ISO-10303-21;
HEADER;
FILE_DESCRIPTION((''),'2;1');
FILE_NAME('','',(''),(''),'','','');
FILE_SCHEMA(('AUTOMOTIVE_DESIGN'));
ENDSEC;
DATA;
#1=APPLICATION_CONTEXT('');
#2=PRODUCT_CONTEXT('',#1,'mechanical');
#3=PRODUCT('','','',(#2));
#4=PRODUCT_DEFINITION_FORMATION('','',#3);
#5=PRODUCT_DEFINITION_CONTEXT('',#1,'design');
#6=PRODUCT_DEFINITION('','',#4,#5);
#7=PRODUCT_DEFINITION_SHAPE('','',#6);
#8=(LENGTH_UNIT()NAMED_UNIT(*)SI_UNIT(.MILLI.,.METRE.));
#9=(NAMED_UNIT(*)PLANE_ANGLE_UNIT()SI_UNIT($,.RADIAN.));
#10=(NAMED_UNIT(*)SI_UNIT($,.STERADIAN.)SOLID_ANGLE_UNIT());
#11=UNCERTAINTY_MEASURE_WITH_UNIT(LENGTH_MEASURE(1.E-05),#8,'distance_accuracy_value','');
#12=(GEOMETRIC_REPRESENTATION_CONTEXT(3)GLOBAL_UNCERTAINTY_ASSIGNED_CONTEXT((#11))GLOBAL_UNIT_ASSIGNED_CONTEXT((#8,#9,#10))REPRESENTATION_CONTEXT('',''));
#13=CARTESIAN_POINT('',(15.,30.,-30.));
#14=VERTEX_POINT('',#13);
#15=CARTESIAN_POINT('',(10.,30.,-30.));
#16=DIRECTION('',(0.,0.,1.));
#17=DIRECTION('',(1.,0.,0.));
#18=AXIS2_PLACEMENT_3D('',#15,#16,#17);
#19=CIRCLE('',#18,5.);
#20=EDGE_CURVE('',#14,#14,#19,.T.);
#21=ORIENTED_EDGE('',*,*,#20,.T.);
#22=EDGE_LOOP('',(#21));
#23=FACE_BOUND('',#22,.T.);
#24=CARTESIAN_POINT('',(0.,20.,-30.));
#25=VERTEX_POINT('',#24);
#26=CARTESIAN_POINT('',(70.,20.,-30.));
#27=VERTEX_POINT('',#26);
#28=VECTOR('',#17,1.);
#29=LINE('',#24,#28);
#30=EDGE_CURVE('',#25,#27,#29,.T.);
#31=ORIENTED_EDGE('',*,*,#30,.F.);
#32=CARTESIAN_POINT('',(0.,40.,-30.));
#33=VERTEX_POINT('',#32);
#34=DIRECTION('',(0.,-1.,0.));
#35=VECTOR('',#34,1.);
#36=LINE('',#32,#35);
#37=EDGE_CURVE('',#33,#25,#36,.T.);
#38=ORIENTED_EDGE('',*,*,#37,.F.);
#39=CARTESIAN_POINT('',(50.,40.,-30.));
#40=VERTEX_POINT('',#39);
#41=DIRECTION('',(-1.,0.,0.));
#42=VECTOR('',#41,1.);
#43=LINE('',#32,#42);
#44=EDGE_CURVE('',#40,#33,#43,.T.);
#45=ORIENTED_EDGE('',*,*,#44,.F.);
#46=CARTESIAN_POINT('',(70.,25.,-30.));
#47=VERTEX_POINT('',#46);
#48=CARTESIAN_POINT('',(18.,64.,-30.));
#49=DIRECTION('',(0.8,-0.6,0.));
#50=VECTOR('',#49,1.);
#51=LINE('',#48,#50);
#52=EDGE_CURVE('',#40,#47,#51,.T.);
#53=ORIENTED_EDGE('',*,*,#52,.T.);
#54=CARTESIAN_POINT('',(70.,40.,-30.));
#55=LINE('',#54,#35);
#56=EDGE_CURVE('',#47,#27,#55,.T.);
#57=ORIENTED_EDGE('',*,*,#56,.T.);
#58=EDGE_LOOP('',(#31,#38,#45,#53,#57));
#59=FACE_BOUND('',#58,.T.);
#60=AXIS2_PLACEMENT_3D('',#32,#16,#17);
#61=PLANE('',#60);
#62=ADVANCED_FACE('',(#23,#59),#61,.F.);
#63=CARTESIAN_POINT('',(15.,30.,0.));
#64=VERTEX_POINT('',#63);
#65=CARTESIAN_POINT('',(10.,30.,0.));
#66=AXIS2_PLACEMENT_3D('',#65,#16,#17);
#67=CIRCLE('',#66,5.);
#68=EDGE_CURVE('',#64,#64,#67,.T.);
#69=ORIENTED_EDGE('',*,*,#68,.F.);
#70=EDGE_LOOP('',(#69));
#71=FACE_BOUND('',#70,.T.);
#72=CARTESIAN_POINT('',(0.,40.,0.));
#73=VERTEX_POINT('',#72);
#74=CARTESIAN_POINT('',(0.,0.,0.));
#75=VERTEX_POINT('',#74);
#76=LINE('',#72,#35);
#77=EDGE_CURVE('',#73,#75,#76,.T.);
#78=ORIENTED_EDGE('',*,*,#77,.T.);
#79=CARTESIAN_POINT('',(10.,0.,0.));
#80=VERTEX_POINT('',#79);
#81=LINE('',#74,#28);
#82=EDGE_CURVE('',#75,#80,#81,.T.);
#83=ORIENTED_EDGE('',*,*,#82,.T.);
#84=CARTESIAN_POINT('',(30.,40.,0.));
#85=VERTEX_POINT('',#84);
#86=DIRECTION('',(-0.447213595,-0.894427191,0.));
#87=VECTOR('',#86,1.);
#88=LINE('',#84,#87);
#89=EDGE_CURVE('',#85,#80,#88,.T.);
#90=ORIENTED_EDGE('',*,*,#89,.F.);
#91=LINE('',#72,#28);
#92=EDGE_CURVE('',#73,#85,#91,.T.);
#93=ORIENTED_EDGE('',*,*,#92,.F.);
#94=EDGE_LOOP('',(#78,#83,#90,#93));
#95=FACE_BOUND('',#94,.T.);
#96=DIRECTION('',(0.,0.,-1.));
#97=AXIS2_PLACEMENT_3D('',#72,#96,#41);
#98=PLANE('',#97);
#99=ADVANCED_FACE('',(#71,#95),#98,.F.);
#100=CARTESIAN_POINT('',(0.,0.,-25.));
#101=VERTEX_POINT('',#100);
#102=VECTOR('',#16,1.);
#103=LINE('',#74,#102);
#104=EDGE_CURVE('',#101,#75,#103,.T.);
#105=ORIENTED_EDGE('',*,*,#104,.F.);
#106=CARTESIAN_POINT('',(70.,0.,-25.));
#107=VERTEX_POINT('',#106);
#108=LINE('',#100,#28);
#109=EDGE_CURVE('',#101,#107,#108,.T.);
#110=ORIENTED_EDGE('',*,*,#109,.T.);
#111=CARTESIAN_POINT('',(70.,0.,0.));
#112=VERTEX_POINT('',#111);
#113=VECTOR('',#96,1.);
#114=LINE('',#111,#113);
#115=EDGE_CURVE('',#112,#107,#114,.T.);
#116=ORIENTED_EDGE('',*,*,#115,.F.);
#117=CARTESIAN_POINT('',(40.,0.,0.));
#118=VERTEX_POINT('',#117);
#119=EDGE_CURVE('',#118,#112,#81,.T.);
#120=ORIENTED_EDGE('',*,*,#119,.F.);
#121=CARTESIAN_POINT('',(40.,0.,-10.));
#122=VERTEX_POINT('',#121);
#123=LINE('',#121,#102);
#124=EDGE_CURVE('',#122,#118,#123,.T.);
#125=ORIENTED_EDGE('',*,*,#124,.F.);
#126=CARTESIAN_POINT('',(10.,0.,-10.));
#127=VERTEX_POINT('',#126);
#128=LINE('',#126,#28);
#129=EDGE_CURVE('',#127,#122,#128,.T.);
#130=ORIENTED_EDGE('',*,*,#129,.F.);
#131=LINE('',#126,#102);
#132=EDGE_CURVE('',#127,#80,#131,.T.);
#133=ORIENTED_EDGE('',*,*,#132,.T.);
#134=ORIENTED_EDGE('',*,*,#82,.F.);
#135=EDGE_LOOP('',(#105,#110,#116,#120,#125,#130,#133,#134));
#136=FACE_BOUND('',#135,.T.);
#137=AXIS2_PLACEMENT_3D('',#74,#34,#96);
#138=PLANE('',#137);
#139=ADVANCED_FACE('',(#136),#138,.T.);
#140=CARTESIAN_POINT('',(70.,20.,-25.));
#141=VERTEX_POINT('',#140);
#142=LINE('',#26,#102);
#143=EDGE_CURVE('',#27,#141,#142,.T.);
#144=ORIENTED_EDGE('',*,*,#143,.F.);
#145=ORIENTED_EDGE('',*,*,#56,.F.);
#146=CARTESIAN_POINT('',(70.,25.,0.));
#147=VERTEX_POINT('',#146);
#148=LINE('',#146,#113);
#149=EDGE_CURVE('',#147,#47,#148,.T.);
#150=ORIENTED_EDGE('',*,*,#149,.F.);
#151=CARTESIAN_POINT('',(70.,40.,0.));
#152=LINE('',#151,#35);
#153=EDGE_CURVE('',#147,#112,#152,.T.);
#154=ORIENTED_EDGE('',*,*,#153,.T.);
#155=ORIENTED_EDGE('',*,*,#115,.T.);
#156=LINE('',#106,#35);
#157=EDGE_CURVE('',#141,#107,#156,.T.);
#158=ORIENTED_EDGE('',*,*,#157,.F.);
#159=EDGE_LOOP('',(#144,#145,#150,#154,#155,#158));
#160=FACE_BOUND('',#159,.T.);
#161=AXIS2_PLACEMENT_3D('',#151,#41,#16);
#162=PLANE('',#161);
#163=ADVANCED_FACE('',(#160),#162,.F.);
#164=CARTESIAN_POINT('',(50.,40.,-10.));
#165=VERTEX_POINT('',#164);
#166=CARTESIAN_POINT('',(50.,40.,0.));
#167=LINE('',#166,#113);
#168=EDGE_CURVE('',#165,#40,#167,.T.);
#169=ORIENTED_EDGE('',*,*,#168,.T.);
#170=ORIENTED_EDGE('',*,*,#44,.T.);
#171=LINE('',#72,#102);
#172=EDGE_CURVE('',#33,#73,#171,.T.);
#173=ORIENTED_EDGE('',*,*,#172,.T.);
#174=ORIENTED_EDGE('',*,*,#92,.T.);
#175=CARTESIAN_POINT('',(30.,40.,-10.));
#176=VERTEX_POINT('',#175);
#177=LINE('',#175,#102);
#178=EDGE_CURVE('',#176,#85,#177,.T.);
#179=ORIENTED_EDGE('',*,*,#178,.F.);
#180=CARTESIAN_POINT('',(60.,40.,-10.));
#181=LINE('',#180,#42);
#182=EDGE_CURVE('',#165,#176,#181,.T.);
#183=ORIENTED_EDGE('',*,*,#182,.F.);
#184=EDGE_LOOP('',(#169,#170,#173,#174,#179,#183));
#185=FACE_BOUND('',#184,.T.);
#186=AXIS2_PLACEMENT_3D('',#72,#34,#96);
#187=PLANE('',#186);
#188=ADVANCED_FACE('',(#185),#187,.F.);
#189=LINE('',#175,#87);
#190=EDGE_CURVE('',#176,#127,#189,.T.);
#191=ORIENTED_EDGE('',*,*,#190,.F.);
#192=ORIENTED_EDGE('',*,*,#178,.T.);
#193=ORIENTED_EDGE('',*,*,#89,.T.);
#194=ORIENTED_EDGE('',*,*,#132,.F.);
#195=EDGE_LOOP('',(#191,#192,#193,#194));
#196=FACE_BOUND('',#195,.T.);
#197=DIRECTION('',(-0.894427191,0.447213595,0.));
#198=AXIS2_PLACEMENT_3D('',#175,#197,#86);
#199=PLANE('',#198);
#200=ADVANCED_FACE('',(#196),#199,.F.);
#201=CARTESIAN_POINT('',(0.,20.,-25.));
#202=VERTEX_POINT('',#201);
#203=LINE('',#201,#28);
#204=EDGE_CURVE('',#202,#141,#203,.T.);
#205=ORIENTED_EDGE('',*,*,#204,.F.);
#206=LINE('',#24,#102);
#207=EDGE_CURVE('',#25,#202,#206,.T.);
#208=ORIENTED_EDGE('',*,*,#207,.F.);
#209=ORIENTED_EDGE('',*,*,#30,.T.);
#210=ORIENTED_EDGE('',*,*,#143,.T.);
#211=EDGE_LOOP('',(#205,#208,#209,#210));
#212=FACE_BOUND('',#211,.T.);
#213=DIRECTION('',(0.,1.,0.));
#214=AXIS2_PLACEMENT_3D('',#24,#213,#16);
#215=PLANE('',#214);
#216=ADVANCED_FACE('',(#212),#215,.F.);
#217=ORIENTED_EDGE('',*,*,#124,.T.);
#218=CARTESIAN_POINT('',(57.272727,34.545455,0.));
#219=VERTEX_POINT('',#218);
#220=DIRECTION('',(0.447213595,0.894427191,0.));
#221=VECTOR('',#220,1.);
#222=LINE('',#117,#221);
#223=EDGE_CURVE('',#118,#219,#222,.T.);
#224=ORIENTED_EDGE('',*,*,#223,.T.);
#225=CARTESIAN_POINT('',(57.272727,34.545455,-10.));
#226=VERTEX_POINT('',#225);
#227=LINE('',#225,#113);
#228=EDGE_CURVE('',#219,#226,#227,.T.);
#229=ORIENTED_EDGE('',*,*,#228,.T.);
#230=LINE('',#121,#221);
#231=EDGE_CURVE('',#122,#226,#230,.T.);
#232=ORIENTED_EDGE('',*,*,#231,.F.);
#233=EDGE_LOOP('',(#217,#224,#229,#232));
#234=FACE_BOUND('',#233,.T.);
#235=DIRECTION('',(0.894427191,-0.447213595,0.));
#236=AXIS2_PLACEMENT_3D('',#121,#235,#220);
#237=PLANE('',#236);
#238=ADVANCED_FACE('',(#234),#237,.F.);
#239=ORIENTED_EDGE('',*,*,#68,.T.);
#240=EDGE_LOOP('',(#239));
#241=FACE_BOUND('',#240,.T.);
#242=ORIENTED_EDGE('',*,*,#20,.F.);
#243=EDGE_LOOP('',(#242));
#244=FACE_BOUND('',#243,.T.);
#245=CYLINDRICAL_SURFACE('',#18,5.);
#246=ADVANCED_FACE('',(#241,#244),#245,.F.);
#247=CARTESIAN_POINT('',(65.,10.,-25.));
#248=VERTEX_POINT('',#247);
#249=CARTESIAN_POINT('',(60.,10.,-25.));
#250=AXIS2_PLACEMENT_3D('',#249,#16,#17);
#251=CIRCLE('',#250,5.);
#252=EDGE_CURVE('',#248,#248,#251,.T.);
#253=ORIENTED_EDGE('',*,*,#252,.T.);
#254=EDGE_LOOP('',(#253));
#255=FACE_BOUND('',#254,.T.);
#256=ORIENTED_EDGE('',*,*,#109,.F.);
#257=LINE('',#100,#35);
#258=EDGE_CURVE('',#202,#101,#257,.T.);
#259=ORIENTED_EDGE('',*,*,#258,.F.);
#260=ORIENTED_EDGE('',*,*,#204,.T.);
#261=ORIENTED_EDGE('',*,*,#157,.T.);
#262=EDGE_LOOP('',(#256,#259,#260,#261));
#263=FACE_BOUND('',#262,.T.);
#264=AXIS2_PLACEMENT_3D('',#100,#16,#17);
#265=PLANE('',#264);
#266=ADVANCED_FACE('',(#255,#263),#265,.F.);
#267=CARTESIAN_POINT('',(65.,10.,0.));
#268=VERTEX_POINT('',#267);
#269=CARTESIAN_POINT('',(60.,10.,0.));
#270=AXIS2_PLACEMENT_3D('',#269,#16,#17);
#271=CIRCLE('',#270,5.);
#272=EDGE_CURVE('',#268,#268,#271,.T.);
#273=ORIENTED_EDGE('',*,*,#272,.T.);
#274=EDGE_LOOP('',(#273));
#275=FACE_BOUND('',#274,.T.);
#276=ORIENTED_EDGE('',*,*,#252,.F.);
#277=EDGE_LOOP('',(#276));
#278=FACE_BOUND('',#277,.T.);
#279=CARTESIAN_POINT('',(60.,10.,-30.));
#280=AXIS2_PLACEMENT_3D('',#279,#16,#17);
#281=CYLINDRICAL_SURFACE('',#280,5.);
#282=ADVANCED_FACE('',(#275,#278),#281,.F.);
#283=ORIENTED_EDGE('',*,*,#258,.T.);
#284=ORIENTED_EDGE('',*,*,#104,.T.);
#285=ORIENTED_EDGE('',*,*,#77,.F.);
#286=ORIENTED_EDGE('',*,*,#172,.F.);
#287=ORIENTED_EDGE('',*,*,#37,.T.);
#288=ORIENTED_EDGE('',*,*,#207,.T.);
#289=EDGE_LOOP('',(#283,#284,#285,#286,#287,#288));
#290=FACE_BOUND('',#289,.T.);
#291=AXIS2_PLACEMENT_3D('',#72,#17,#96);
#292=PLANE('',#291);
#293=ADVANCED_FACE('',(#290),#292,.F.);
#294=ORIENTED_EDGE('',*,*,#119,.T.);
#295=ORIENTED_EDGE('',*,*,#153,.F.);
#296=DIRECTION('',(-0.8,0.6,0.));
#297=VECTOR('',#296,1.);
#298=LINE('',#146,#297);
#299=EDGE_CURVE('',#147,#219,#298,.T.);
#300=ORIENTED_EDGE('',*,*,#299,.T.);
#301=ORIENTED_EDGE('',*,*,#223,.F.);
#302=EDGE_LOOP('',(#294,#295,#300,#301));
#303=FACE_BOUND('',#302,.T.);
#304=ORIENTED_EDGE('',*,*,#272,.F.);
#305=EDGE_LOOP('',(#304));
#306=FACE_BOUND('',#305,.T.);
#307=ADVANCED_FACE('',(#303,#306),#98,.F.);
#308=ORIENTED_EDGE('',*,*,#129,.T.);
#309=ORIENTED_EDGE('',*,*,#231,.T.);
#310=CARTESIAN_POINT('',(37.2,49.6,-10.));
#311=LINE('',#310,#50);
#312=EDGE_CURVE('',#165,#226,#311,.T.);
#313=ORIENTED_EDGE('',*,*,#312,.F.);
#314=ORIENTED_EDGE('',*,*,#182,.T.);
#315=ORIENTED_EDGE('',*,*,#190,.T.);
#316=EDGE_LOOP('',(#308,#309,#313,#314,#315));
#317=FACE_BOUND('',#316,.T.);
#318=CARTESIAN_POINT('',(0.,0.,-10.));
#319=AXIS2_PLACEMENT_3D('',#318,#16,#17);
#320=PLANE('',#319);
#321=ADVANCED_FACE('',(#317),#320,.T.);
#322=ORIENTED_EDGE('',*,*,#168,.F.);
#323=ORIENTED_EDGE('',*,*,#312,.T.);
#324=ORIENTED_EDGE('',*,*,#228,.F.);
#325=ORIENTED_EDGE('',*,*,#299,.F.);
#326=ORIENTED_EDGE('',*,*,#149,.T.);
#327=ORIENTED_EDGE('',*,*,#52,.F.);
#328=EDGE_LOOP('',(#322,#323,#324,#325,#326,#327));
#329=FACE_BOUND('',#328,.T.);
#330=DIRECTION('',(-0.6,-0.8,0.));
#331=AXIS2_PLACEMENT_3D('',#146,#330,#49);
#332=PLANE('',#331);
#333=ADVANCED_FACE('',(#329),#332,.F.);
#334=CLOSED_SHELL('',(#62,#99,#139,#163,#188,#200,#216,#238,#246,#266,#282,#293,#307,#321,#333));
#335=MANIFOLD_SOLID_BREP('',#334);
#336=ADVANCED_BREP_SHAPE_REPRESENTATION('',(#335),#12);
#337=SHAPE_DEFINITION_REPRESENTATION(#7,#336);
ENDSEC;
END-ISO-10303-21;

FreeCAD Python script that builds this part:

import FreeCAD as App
import Part
import Sketcher

V = App.Vector

doc = App.newDocument("Part")
params = doc.addObject("Spreadsheet::Sheet", "Params")
for row, (alias, value) in enumerate([
    ("sketch1_width", "70 mm"),
    ("sketch1_height", "30 mm"),
    ("pad1_length", "40 mm"),
    ("sketch2_width", "30 mm"),
    ("pocket1_length", "10 mm"),
    ("sketch3_width", "20 mm"),
    ("sketch3_height", "15 mm"),
    ("sketch4_width", "20 mm"),
    ("sketch4_height", "5 mm"),
    ("sketch5_diameter", "10 mm"),
    ("sketch6_diameter", "10 mm"),
], start=1):
    params.set(f"A{row}", alias)
    params.set(f"B{row}", "=" + value)
    params.setAlias(f"B{row}", alias)

body = doc.addObject("PartDesign::Body", "Body")

# Sketch on XZ plane
sketch1 = body.newObject("Sketcher::SketchObject", "Sketch")
sketch1.AttachmentSupport = (doc.getObject("XZ_Plane"), [""])
sketch1.MapMode = "FlatFace"
sketch1.addGeometry(Part.LineSegment(V(0, -30, 0), V(0, 0, 0)), False)
sketch1.addGeometry(Part.LineSegment(V(0, 0, 0), V(70, 0, 0)), False)
sketch1.addGeometry(Part.LineSegment(V(70, 0, 0), V(70, -30, 0)), False)
sketch1.addGeometry(Part.LineSegment(V(70, -30, 0), V(0, -30, 0)), False)
sketch1.addConstraint(Sketcher.Constraint("Coincident", 0, 2, 1, 1))
sketch1.addConstraint(Sketcher.Constraint("Coincident", 1, 2, 2, 1))
sketch1.addConstraint(Sketcher.Constraint("Coincident", 2, 2, 3, 1))
sketch1.addConstraint(Sketcher.Constraint("Coincident", 3, 2, 0, 1))
sketch1.addConstraint(Sketcher.Constraint("Vertical", 0))
sketch1.addConstraint(Sketcher.Constraint("Horizontal", 1))
sketch1.addConstraint(Sketcher.Constraint("Vertical", 2))
sketch1.addConstraint(Sketcher.Constraint("Horizontal", 3))
sketch1.addConstraint(Sketcher.Constraint("Coincident", 0, 2, -1, 1))
sketch1.addConstraint(Sketcher.Constraint("DistanceX", 1, 1, 1, 2, 70.0))
sketch1.addConstraint(Sketcher.Constraint("DistanceY", 0, 1, 0, 2, 30.0))
sketch1.setExpression("Constraints[9]", "Params.sketch1_width")
sketch1.setExpression("Constraints[10]", "Params.sketch1_height")
pad1 = body.newObject("PartDesign::Pad", "Pad")
pad1.Profile = sketch1
pad1.setExpression("Length", "Params.pad1_length")
pad1.Reversed = True

# Sketch on XY plane
sketch2 = body.newObject("Sketcher::SketchObject", "Sketch001")
sketch2.AttachmentSupport = (doc.getObject("XY_Plane"), [""])
sketch2.MapMode = "FlatFace"
sketch2.addGeometry(Part.LineSegment(V(30, 40, 0), V(10, 0, 0)), False)
sketch2.addGeometry(Part.LineSegment(V(10, 0, 0), V(40, 0, 0)), False)
sketch2.addGeometry(Part.LineSegment(V(40, 0, 0), V(60, 40, 0)), False)
sketch2.addGeometry(Part.LineSegment(V(60, 40, 0), V(30, 40, 0)), False)
sketch2.addConstraint(Sketcher.Constraint("Coincident", 0, 2, 1, 1))
sketch2.addConstraint(Sketcher.Constraint("Coincident", 1, 2, 2, 1))
sketch2.addConstraint(Sketcher.Constraint("Coincident", 2, 2, 3, 1))
sketch2.addConstraint(Sketcher.Constraint("Coincident", 3, 2, 0, 1))
sketch2.addConstraint(Sketcher.Constraint("Horizontal", 1))
sketch2.addConstraint(Sketcher.Constraint("Horizontal", 3))
sketch2.addConstraint(Sketcher.Constraint("PointOnObject", 0, 2, -1))
sketch2.addConstraint(Sketcher.Constraint("Parallel", 0, 2))
sketch2.addConstraint(Sketcher.Constraint("DistanceX", 1, 1, 1, 2, 30.0))
sketch2.addConstraint(Sketcher.Constraint("DistanceX", -1, 1, 0, 2, 10.0))
sketch2.addConstraint(Sketcher.Constraint("DistanceX", -1, 1, 2, 2, 60.0))
sketch2.addConstraint(Sketcher.Constraint("DistanceY", -1, 1, 2, 2, 40.0))
sketch2.setExpression("Constraints[8]", "Params.sketch2_width")
pocket1 = body.newObject("PartDesign::Pocket", "Pocket")
pocket1.Profile = sketch2
pocket1.setExpression("Length", "Params.pocket1_length")

# Sketch on XY plane
sketch3 = body.newObject("Sketcher::SketchObject", "Sketch002")
sketch3.AttachmentSupport = (doc.getObject("XY_Plane"), [""])
sketch3.MapMode = "FlatFace"
sketch3.AttachmentOffset = App.Placement(V(0, 0, -30), App.Rotation())
sketch3.addGeometry(Part.LineSegment(V(70, 40, 0), V(70, 25, 0)), False)
sketch3.addGeometry(Part.LineSegment(V(70, 25, 0), V(50, 40, 0)), False)
sketch3.addGeometry(Part.LineSegment(V(50, 40, 0), V(70, 40, 0)), False)
sketch3.addConstraint(Sketcher.Constraint("Coincident", 0, 2, 1, 1))
sketch3.addConstraint(Sketcher.Constraint("Coincident", 1, 2, 2, 1))
sketch3.addConstraint(Sketcher.Constraint("Coincident", 2, 2, 0, 1))
sketch3.addConstraint(Sketcher.Constraint("Vertical", 0))
sketch3.addConstraint(Sketcher.Constraint("Horizontal", 2))
sketch3.addConstraint(Sketcher.Constraint("DistanceX", 2, 1, 2, 2, 20.0))
sketch3.addConstraint(Sketcher.Constraint("DistanceY", 0, 2, 0, 1, 15.0))
sketch3.addConstraint(Sketcher.Constraint("DistanceX", -1, 1, 0, 2, 70.0))
sketch3.addConstraint(Sketcher.Constraint("DistanceY", -1, 1, 0, 2, 25.0))
sketch3.setExpression("Constraints[5]", "Params.sketch3_width")
sketch3.setExpression("Constraints[6]", "Params.sketch3_height")
pocket2 = body.newObject("PartDesign::Pocket", "Pocket001")
pocket2.Profile = sketch3
pocket2.Type = "ThroughAll"
pocket2.Midplane = True

# Sketch on YZ plane
sketch4 = body.newObject("Sketcher::SketchObject", "Sketch003")
sketch4.AttachmentSupport = (doc.getObject("YZ_Plane"), [""])
sketch4.MapMode = "FlatFace"
sketch4.AttachmentOffset = App.Placement(V(0, 0, 70), App.Rotation())
sketch4.addGeometry(Part.LineSegment(V(20, -25, 0), V(0, -25, 0)), False)
sketch4.addGeometry(Part.LineSegment(V(0, -25, 0), V(0, -30, 0)), False)
sketch4.addGeometry(Part.LineSegment(V(0, -30, 0), V(20, -30, 0)), False)
sketch4.addGeometry(Part.LineSegment(V(20, -30, 0), V(20, -25, 0)), False)
sketch4.addConstraint(Sketcher.Constraint("Coincident", 0, 2, 1, 1))
sketch4.addConstraint(Sketcher.Constraint("Coincident", 1, 2, 2, 1))
sketch4.addConstraint(Sketcher.Constraint("Coincident", 2, 2, 3, 1))
sketch4.addConstraint(Sketcher.Constraint("Coincident", 3, 2, 0, 1))
sketch4.addConstraint(Sketcher.Constraint("Horizontal", 0))
sketch4.addConstraint(Sketcher.Constraint("Vertical", 1))
sketch4.addConstraint(Sketcher.Constraint("Horizontal", 2))
sketch4.addConstraint(Sketcher.Constraint("Vertical", 3))
sketch4.addConstraint(Sketcher.Constraint("PointOnObject", 0, 2, -2))
sketch4.addConstraint(Sketcher.Constraint("DistanceX", 0, 2, 0, 1, 20.0))
sketch4.addConstraint(Sketcher.Constraint("DistanceY", 1, 2, 1, 1, 5.0))
sketch4.addConstraint(Sketcher.Constraint("DistanceY", 0, 2, -1, 1, 25.0))
sketch4.setExpression("Constraints[9]", "Params.sketch4_width")
sketch4.setExpression("Constraints[10]", "Params.sketch4_height")
pocket3 = body.newObject("PartDesign::Pocket", "Pocket002")
pocket3.Profile = sketch4
pocket3.Type = "ThroughAll"

# Sketch on XY plane
sketch5 = body.newObject("Sketcher::SketchObject", "Sketch004")
sketch5.AttachmentSupport = (doc.getObject("XY_Plane"), [""])
sketch5.MapMode = "FlatFace"
sketch5.addGeometry(Part.Circle(V(60, 10, 0), V(0, 0, 1), 5), False)
sketch5.addConstraint(Sketcher.Constraint("Diameter", 0, 10.0))
sketch5.addConstraint(Sketcher.Constraint("DistanceX", -1, 1, 0, 3, 60.0))
sketch5.addConstraint(Sketcher.Constraint("DistanceY", -1, 1, 0, 3, 10.0))
sketch5.setExpression("Constraints[0]", "Params.sketch5_diameter")
pocket4 = body.newObject("PartDesign::Pocket", "Pocket003")
pocket4.Profile = sketch5
pocket4.Type = "ThroughAll"

# Sketch on XY plane
sketch6 = body.newObject("Sketcher::SketchObject", "Sketch005")
sketch6.AttachmentSupport = (doc.getObject("XY_Plane"), [""])
sketch6.MapMode = "FlatFace"
sketch6.addGeometry(Part.Circle(V(10, 30, 0), V(0, 0, 1), 5), False)
sketch6.addConstraint(Sketcher.Constraint("Diameter", 0, 10.0))
sketch6.addConstraint(Sketcher.Constraint("DistanceX", -1, 1, 0, 3, 10.0))
sketch6.addConstraint(Sketcher.Constraint("DistanceY", -1, 1, 0, 3, 30.0))
sketch6.setExpression("Constraints[0]", "Params.sketch6_diameter")
pocket5 = body.newObject("PartDesign::Pocket", "Pocket004")
pocket5.Profile = sketch6
pocket5.Type = "ThroughAll"

doc.recompute()
